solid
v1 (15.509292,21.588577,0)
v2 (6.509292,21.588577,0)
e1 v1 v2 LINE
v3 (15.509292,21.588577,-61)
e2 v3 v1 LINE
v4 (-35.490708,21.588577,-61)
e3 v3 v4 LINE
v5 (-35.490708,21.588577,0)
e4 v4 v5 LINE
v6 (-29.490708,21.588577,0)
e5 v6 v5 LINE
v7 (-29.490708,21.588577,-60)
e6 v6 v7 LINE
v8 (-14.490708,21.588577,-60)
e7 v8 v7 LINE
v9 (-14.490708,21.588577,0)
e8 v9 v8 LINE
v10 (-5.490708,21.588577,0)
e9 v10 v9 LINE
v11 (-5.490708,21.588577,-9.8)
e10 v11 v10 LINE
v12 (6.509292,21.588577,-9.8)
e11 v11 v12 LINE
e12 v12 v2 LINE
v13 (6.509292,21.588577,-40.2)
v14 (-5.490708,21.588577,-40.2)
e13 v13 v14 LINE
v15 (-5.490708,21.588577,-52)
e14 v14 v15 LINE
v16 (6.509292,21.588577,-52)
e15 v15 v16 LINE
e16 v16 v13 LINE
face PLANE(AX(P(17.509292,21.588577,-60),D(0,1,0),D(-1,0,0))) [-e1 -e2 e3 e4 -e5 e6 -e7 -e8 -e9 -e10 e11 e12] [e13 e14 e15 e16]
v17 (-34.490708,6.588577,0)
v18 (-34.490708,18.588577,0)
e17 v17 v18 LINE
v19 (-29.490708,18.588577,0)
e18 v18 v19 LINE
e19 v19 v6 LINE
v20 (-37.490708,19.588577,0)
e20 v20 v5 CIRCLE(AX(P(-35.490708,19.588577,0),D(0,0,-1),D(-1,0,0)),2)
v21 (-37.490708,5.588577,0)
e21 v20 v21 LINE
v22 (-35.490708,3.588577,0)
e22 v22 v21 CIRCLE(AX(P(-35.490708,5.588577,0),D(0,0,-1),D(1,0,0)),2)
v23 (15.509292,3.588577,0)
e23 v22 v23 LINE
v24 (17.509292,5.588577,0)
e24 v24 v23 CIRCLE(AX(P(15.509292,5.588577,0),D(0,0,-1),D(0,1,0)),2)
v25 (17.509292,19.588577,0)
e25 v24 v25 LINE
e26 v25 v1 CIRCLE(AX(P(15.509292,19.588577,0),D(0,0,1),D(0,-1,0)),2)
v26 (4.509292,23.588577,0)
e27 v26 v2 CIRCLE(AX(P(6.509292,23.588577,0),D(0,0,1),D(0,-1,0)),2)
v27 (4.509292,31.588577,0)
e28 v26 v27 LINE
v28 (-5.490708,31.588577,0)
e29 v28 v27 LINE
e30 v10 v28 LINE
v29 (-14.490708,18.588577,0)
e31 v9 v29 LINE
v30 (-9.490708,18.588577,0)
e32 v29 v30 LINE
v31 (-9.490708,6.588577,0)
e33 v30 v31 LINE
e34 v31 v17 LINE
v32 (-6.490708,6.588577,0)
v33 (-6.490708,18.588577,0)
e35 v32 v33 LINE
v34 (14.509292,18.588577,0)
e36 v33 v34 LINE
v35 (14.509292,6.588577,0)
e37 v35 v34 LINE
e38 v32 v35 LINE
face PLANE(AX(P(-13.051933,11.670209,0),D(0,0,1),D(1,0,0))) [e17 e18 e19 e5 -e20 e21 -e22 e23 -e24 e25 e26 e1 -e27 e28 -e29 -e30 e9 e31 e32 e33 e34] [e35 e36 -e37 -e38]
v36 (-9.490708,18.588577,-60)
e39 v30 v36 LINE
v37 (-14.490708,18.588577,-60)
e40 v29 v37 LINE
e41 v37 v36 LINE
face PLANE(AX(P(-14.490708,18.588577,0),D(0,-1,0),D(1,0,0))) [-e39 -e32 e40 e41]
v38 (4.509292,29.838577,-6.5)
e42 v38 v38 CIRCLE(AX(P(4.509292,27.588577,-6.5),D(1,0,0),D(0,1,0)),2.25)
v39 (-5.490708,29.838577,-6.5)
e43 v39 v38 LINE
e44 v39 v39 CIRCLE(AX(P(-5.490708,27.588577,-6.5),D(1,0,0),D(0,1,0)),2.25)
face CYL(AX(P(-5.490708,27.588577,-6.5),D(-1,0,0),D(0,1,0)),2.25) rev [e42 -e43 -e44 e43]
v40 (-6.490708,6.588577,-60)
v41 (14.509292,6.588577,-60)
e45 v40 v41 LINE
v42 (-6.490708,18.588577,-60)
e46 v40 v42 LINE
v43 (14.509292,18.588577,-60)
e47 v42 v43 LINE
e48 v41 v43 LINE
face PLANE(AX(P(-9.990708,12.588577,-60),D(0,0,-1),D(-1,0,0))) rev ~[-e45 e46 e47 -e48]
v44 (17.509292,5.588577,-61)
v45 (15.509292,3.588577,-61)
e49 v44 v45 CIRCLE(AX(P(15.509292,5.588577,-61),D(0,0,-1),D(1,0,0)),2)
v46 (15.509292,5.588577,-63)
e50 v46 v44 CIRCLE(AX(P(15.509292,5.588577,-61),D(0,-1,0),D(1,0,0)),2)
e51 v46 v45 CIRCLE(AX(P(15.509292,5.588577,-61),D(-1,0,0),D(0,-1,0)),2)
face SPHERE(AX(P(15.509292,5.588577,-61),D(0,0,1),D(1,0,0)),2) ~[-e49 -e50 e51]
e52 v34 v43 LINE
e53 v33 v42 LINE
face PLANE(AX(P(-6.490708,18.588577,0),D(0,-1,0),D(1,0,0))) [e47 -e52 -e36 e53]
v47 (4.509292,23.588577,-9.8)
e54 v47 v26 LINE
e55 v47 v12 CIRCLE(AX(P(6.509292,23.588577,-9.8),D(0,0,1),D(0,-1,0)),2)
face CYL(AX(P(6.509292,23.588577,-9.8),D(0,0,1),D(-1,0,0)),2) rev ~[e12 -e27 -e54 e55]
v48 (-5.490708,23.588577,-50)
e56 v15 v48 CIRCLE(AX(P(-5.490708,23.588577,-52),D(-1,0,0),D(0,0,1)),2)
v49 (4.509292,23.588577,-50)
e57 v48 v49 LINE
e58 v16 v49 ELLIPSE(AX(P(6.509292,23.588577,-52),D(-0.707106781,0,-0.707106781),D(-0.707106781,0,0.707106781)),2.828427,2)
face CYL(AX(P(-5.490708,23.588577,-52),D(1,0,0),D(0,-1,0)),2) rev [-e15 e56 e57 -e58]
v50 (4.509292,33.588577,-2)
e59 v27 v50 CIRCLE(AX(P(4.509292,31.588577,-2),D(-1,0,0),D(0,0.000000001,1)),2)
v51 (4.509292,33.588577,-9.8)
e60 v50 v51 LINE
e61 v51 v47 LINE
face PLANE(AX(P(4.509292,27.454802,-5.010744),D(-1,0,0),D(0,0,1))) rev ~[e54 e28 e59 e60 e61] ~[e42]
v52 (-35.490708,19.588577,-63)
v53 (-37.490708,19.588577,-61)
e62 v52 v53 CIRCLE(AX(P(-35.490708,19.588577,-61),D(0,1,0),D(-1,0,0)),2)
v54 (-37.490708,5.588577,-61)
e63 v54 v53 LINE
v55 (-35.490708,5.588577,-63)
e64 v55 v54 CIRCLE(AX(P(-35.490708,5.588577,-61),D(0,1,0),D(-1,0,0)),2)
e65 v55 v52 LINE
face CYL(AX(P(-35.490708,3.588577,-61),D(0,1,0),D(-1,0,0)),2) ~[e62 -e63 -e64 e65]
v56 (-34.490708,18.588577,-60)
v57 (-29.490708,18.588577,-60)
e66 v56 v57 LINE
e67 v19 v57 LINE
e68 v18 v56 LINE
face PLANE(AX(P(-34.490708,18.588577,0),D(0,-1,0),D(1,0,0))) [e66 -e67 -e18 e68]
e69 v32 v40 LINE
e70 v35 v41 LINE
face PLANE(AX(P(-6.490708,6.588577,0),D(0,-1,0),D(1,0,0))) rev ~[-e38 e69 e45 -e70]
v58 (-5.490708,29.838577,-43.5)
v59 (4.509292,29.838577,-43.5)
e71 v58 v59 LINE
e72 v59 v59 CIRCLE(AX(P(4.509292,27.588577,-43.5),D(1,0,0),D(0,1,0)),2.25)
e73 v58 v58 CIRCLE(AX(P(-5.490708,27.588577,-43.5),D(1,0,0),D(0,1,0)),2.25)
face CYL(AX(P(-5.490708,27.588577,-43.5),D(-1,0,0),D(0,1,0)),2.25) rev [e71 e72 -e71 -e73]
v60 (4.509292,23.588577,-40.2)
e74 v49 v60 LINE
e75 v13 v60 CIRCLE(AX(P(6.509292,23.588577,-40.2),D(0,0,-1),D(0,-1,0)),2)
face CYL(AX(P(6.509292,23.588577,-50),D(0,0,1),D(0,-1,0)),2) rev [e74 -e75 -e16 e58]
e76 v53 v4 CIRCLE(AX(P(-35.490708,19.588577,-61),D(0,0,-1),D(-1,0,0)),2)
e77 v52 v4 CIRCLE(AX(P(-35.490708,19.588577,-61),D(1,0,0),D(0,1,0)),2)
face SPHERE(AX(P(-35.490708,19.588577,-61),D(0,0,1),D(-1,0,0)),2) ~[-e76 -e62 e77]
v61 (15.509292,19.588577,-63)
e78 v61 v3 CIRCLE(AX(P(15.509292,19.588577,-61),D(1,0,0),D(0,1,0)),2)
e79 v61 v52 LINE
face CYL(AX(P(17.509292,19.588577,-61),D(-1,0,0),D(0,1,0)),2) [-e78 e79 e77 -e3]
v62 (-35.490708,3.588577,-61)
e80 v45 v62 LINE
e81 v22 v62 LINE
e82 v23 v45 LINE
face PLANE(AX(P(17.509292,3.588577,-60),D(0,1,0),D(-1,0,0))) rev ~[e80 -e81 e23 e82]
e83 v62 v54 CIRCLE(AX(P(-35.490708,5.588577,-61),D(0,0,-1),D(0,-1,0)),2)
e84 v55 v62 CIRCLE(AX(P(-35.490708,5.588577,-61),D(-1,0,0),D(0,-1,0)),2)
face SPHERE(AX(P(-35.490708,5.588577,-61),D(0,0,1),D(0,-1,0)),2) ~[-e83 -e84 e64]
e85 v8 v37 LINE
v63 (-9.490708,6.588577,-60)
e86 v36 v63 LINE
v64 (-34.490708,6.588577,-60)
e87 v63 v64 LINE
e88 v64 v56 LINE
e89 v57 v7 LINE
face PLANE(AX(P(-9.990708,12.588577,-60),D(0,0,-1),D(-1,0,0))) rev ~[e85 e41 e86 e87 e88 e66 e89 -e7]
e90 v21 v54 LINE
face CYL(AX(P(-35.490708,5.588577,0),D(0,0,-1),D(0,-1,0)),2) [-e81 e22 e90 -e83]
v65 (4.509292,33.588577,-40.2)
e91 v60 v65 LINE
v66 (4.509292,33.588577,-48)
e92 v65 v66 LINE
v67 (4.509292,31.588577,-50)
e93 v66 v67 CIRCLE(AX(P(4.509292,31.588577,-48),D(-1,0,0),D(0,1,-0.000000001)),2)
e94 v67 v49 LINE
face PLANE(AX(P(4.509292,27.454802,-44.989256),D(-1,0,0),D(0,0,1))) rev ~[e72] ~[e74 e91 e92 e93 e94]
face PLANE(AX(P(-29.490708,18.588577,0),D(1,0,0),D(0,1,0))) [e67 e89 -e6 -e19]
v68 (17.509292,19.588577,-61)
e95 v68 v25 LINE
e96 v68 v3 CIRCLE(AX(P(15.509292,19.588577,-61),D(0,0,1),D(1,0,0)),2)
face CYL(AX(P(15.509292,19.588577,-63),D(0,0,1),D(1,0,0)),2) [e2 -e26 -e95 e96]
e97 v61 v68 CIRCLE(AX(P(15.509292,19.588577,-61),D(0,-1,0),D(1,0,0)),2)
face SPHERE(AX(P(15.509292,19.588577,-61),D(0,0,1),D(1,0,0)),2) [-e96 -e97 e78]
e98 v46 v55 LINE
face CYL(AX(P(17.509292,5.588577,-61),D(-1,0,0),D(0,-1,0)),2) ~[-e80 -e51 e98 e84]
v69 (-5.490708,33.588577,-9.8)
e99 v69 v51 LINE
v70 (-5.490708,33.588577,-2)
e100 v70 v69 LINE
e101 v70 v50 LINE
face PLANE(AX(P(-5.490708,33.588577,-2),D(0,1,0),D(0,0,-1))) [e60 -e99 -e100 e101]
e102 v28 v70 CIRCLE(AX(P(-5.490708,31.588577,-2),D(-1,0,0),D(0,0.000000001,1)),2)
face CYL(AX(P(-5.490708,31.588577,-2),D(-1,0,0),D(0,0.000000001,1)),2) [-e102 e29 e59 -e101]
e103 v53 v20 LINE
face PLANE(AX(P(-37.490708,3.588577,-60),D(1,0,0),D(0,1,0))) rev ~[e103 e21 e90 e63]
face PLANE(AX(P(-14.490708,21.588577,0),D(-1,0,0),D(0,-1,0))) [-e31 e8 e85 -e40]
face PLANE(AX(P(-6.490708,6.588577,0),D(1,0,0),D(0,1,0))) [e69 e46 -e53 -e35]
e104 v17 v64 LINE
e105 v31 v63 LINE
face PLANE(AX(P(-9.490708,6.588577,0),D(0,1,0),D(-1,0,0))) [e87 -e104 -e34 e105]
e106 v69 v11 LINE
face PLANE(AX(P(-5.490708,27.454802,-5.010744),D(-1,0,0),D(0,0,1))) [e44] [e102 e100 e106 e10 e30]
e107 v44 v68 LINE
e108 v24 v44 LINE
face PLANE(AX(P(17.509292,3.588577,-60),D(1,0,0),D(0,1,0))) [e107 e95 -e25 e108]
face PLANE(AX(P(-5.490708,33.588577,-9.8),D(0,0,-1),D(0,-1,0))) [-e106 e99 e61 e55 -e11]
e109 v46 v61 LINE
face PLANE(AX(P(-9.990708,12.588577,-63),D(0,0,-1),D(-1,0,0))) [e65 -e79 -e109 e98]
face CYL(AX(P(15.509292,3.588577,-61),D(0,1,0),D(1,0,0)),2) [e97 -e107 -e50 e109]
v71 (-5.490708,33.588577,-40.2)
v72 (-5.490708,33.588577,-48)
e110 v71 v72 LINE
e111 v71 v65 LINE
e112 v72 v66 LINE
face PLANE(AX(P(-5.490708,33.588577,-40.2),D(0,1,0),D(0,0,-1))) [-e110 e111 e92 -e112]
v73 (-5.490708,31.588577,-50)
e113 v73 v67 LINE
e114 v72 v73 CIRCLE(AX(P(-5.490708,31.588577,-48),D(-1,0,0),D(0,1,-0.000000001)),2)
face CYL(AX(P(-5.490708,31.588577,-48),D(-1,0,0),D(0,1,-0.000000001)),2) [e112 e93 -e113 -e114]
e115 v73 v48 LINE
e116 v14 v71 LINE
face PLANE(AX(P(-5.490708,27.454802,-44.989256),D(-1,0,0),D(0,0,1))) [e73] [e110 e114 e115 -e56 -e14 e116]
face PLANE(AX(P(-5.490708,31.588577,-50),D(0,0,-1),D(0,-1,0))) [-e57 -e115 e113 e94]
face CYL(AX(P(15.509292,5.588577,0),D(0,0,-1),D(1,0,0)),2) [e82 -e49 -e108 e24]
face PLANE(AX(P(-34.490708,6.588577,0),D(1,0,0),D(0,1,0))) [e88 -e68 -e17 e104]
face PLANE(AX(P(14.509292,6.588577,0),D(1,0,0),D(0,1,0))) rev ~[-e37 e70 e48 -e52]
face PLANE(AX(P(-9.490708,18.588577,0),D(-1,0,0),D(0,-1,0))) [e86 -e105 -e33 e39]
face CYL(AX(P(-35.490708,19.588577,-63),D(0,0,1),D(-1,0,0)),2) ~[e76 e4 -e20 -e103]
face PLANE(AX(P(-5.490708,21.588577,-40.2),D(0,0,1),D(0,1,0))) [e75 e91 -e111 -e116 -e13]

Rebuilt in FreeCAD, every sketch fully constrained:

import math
import FreeCAD as App
import Part
import Sketcher


def edges_at(feature, points):
    """Names of the edges that pass closest to the given points."""
    edges = feature.Shape.Edges
    near = lambda p: min(range(len(edges)), key=lambda i: edges[i].distToShape(Part.Vertex(*p))[0])
    return sorted({f"Edge{near(p) + 1}" for p in points})

doc = App.newDocument("Part")
params = doc.addObject("Spreadsheet::Sheet", "Params")
for row, (alias, value) in enumerate([
    ("sketch1_width", "32 mm"),
    ("sketch1_width2", "5 mm"),
    ("sketch1_width3", "25 mm"),
    ("sketch1_width4", "8 mm"),
    ("sketch1_width5", "21 mm"),
    ("pad1_length", "60 mm"),
    ("sketch2_radius", "2 mm"),
    ("sketch2_diameter", "4.5 mm"),
    ("sketch2_width", "10 mm"),
    ("sketch2_height", "9.8 mm"),
    ("pad2_length", "10 mm"),
    ("sketch3_width", "55 mm"),
    ("sketch3_height", "18 mm"),
    ("pad3_length", "3 mm"),
    ("fillet_radius", "2 mm"),
], start=1):
    params.set(f"A{row}", alias)
    params.set(f"B{row}", "=" + value)
    params.setAlias(f"B{row}", alias)

body = doc.addObject("PartDesign::Body", "Body")

# Sketch on XY plane
sketch1 = body.newObject("Sketcher::SketchObject", "Sketch")
sketch1.AttachmentSupport = (doc.getObject("XY_Plane"), [""])
sketch1.MapMode = "FlatFace"
sketch1.addGeometry(Part.LineSegment(App.Vector(17.5, 21.6, 0), App.Vector(-14.5, 21.6, 0)), False)
sketch1.addGeometry(Part.LineSegment(App.Vector(-14.5, 21.6, 0), App.Vector(-14.5, 18.6, 0)), False)
sketch1.addGeometry(Part.LineSegment(App.Vector(-14.5, 18.6, 0), App.Vector(-9.5, 18.6, 0)), False)
sketch1.addGeometry(Part.LineSegment(App.Vector(-9.5, 18.6, 0), App.Vector(-9.5, 6.6, 0)), False)
sketch1.addGeometry(Part.LineSegment(App.Vector(-9.5, 6.6, 0), App.Vector(-34.5, 6.6, 0)), False)
sketch1.addGeometry(Part.LineSegment(App.Vector(-34.5, 6.6, 0), App.Vector(-34.5, 18.6, 0)), False)
sketch1.addGeometry(Part.LineSegment(App.Vector(-34.5, 18.6, 0), App.Vector(-29.5, 18.6, 0)), False)
sketch1.addGeometry(Part.LineSegment(App.Vector(-29.5, 18.6, 0), App.Vector(-29.5, 21.6, 0)), False)
sketch1.addGeometry(Part.LineSegment(App.Vector(-29.5, 21.6, 0), App.Vector(-37.5, 21.6, 0)), False)
sketch1.addGeometry(Part.LineSegment(App.Vector(-37.5, 21.6, 0), App.Vector(-37.5, 3.6, 0)), False)
sketch1.addGeometry(Part.LineSegment(App.Vector(-37.5, 3.6, 0), App.Vector(17.5, 3.6, 0)), False)
sketch1.addGeometry(Part.LineSegment(App.Vector(17.5, 3.6, 0), App.Vector(17.5, 21.6, 0)), False)
sketch1.addGeometry(Part.LineSegment(App.Vector(14.5, 6.6, 0), App.Vector(-6.5, 6.6, 0)), False)
sketch1.addGeometry(Part.LineSegment(App.Vector(-6.5, 6.6, 0), App.Vector(-6.5, 18.6, 0)), False)
sketch1.addGeometry(Part.LineSegment(App.Vector(-6.5, 18.6, 0), App.Vector(14.5, 18.6, 0)), False)
sketch1.addGeometry(Part.LineSegment(App.Vector(14.5, 18.6, 0), App.Vector(14.5, 6.6, 0)), False)
sketch1.addConstraint(Sketcher.Constraint("Coincident", 0, 2, 1, 1))
sketch1.addConstraint(Sketcher.Constraint("Coincident", 1, 2, 2, 1))
sketch1.addConstraint(Sketcher.Constraint("Coincident", 2, 2, 3, 1))
sketch1.addConstraint(Sketcher.Constraint("Coincident", 3, 2, 4, 1))
sketch1.addConstraint(Sketcher.Constraint("Coincident", 4, 2, 5, 1))
sketch1.addConstraint(Sketcher.Constraint("Coincident", 5, 2, 6, 1))
sketch1.addConstraint(Sketcher.Constraint("Coincident", 6, 2, 7, 1))
sketch1.addConstraint(Sketcher.Constraint("Coincident", 7, 2, 8, 1))
sketch1.addConstraint(Sketcher.Constraint("Coincident", 8, 2, 9, 1))
sketch1.addConstraint(Sketcher.Constraint("Coincident", 9, 2, 10, 1))
sketch1.addConstraint(Sketcher.Constraint("Coincident", 10, 2, 11, 1))
sketch1.addConstraint(Sketcher.Constraint("Coincident", 11, 2, 0, 1))
sketch1.addConstraint(Sketcher.Constraint("Coincident", 12, 2, 13, 1))
sketch1.addConstraint(Sketcher.Constraint("Coincident", 13, 2, 14, 1))
sketch1.addConstraint(Sketcher.Constraint("Coincident", 14, 2, 15, 1))
sketch1.addConstraint(Sketcher.Constraint("Coincident", 15, 2, 12, 1))
sketch1.addConstraint(Sketcher.Constraint("Horizontal", 0))
sketch1.addConstraint(Sketcher.Constraint("Vertical", 1))
sketch1.addConstraint(Sketcher.Constraint("Horizontal", 2))
sketch1.addConstraint(Sketcher.Constraint("Vertical", 3))
sketch1.addConstraint(Sketcher.Constraint("Horizontal", 4))
sketch1.addConstraint(Sketcher.Constraint("Vertical", 5))
sketch1.addConstraint(Sketcher.Constraint("Horizontal", 6))
sketch1.addConstraint(Sketcher.Constraint("Vertical", 7))
sketch1.addConstraint(Sketcher.Constraint("Horizontal", 8))
sketch1.addConstraint(Sketcher.Constraint("Vertical", 9))
sketch1.addConstraint(Sketcher.Constraint("Horizontal", 10))
sketch1.addConstraint(Sketcher.Constraint("Vertical", 11))
sketch1.addConstraint(Sketcher.Constraint("Horizontal", 12))
sketch1.addConstraint(Sketcher.Constraint("Vertical", 13))
sketch1.addConstraint(Sketcher.Constraint("Horizontal", 14))
sketch1.addConstraint(Sketcher.Constraint("Vertical", 15))
sketch1.addConstraint(Sketcher.Constraint("Horizontal", 2, 2, 5, 2))
sketch1.addConstraint(Sketcher.Constraint("Horizontal", 0, 2, 7, 2))
sketch1.addConstraint(Sketcher.Constraint("Horizontal", 4, 2, 12, 2))
sketch1.addConstraint(Sketcher.Constraint("Horizontal", 6, 2, 13, 2))
sketch1.addConstraint(Sketcher.Constraint("Equal", 2, 6))
sketch1.addConstraint(Sketcher.Constraint("DistanceX", 0, 2, 0, 1, 32.0))
sketch1.addConstraint(Sketcher.Constraint("DistanceX", 2, 1, 2, 2, 5.0))
sketch1.addConstraint(Sketcher.Constraint("DistanceX", 4, 2, 4, 1, 25.0))
sketch1.addConstraint(Sketcher.Constraint("DistanceX", 8, 2, 8, 1, 8.0))
sketch1.addConstraint(Sketcher.Constraint("DistanceX", 12, 2, 12, 1, 21.0))
sketch1.addConstraint(Sketcher.Constraint("DistanceY", 1, 2, 1, 1, 3.0))
sketch1.addConstraint(Sketcher.Constraint("DistanceY", 3, 2, 3, 1, 12.0))
sketch1.addConstraint(Sketcher.Constraint("DistanceY", 9, 2, 9, 1, 18.0))
sketch1.addConstraint(Sketcher.Constraint("DistanceX", 3, 2, 12, 2, 3.0))
sketch1.addConstraint(Sketcher.Constraint("DistanceX", 0, 2, -1, 1, 14.490708))
sketch1.addConstraint(Sketcher.Constraint("DistanceY", -1, 1, 0, 2, 21.588577))
sketch1.setExpression("Constraints[37]", "Params.sketch1_width")
sketch1.setExpression("Constraints[38]", "Params.sketch1_width2")
sketch1.setExpression("Constraints[39]", "Params.sketch1_width3")
sketch1.setExpression("Constraints[40]", "Params.sketch1_width4")
sketch1.setExpression("Constraints[41]", "Params.sketch1_width5")
pad1 = body.newObject("PartDesign::Pad", "Pad")
pad1.Profile = sketch1
pad1.setExpression("Length", "Params.pad1_length")
pad1.Reversed = True

# Sketch on YZ plane
sketch2 = body.newObject("Sketcher::SketchObject", "Sketch001")
sketch2.AttachmentSupport = (doc.getObject("YZ_Plane"), [""])
sketch2.MapMode = "FlatFace"
sketch2.AttachmentOffset = App.Placement(App.Vector(0, 0, -5.490708), App.Rotation())
sketch2.addGeometry(Part.LineSegment(App.Vector(21.6, -40.2, 0), App.Vector(21.6, -50, 0)), False)
sketch2.addGeometry(Part.LineSegment(App.Vector(21.6, -50, 0), App.Vector(31.6, -50, 0)), False)
sketch2.addGeometry(Part.ArcOfCircle(Part.Circle(App.Vector(31.6, -48, 0), App.Vector(0, 0, 1), 2), math.radians(-90), math.radians(0)), False)
sketch2.addGeometry(Part.LineSegment(App.Vector(33.6, -48, 0), App.Vector(33.6, -40.2, 0)), False)
sketch2.addGeometry(Part.LineSegment(App.Vector(33.6, -40.2, 0), App.Vector(21.6, -40.2, 0)), False)
sketch2.addGeometry(Part.Circle(App.Vector(27.6, -43.5, 0), App.Vector(0, 0, 1), 2.2), False)
sketch2.addGeometry(Part.LineSegment(App.Vector(21.6, 0, 0), App.Vector(21.6, -9.8, 0)), False)
sketch2.addGeometry(Part.LineSegment(App.Vector(21.6, -9.8, 0), App.Vector(33.6, -9.8, 0)), False)
sketch2.addGeometry(Part.LineSegment(App.Vector(33.6, -9.8, 0), App.Vector(33.6, -2, 0)), False)
sketch2.addGeometry(Part.ArcOfCircle(Part.Circle(App.Vector(31.6, -2, 0), App.Vector(0, 0, 1), 2), math.radians(0), math.radians(90)), False)
sketch2.addGeometry(Part.LineSegment(App.Vector(31.6, 0, 0), App.Vector(21.6, 0, 0)), False)
sketch2.addGeometry(Part.Circle(App.Vector(27.6, -6.5, 0), App.Vector(0, 0, 1), 2.2), False)
sketch2.addConstraint(Sketcher.Constraint("Coincident", 0, 2, 1, 1))
sketch2.addConstraint(Sketcher.Constraint("Tangent", 1, 2, 2, 1))
sketch2.addConstraint(Sketcher.Constraint("Tangent", 2, 2, 3, 1))
sketch2.addConstraint(Sketcher.Constraint("Coincident", 3, 2, 4, 1))
sketch2.addConstraint(Sketcher.Constraint("Coincident", 4, 2, 0, 1))
sketch2.addConstraint(Sketcher.Constraint("Coincident", 6, 2, 7, 1))
sketch2.addConstraint(Sketcher.Constraint("Coincident", 7, 2, 8, 1))
sketch2.addConstraint(Sketcher.Constraint("Tangent", 8, 2, 9, 1))
sketch2.addConstraint(Sketcher.Constraint("Tangent", 9, 2, 10, 1))
sketch2.addConstraint(Sketcher.Constraint("Coincident", 10, 2, 6, 1))
sketch2.addConstraint(Sketcher.Constraint("Vertical", 0))
sketch2.addConstraint(Sketcher.Constraint("Horizontal", 1))
sketch2.addConstraint(Sketcher.Constraint("Vertical", 3))
sketch2.addConstraint(Sketcher.Constraint("Horizontal", 4))
sketch2.addConstraint(Sketcher.Constraint("Vertical", 6))
sketch2.addConstraint(Sketcher.Constraint("Horizontal", 7))
sketch2.addConstraint(Sketcher.Constraint("Vertical", 8))
sketch2.addConstraint(Sketcher.Constraint("Horizontal", 10))
sketch2.addConstraint(Sketcher.Constraint("Equal", 2, 9))
sketch2.addConstraint(Sketcher.Constraint("Equal", 5, 11))
sketch2.addConstraint(Sketcher.Constraint("PointOnObject", 9, 2, -1))
sketch2.addConstraint(Sketcher.Constraint("Vertical", 2, 3, 9, 3))
sketch2.addConstraint(Sketcher.Constraint("Vertical", 5, 3, 11, 3))
sketch2.addConstraint(Sketcher.Constraint("Vertical", 4, 2, 6, 2))
sketch2.addConstraint(Sketcher.Constraint("Equal", 0, 6))
sketch2.addConstraint(Sketcher.Constraint("Radius", 2, 2.0))
sketch2.addConstraint(Sketcher.Constraint("Diameter", 5, 4.5))
sketch2.addConstraint(Sketcher.Constraint("DistanceX", 1, 1, 1, 2, 10.0))
sketch2.addConstraint(Sketcher.Constraint("DistanceY", 0, 2, 0, 1, 9.8))
sketch2.addConstraint(Sketcher.Constraint("DistanceY", 2, 3, -1, 1, 48.0))
sketch2.addConstraint(Sketcher.Constraint("DistanceX", 5, 3, 2, 3, 4.0))
sketch2.addConstraint(Sketcher.Constraint("DistanceY", 5, 3, 11, 3, 37.0))
sketch2.addConstraint(Sketcher.Constraint("DistanceY", 5, 3, -1, 1, 43.5))
sketch2.addConstraint(Sketcher.Constraint("DistanceX", -1, 1, 2, 3, 31.588577))
sketch2.setExpression("Constraints[25]", "Params.sketch2_radius")
sketch2.setExpression("Constraints[26]", "Params.sketch2_diameter")
sketch2.setExpression("Constraints[27]", "Params.sketch2_width")
sketch2.setExpression("Constraints[28]", "Params.sketch2_height")
pad2 = body.newObject("PartDesign::Pad", "Pad001")
pad2.Profile = sketch2
pad2.setExpression("Length", "Params.pad2_length")

# Sketch on XY plane
sketch3 = body.newObject("Sketcher::SketchObject", "Sketch002")
sketch3.AttachmentSupport = (doc.getObject("XY_Plane"), [""])
sketch3.MapMode = "FlatFace"
sketch3.AttachmentOffset = App.Placement(App.Vector(0, 0, -60), App.Rotation())
sketch3.addGeometry(Part.LineSegment(App.Vector(18, 22, 0), App.Vector(18, 4, 0)), False)
sketch3.addGeometry(Part.LineSegment(App.Vector(18, 4, 0), App.Vector(-37, 4, 0)), False)
sketch3.addGeometry(Part.LineSegment(App.Vector(-37, 4, 0), App.Vector(-37, 22, 0)), False)
sketch3.addGeometry(Part.LineSegment(App.Vector(-37, 22, 0), App.Vector(18, 22, 0)), False)
sketch3.addConstraint(Sketcher.Constraint("Coincident", 0, 2, 1, 1))
sketch3.addConstraint(Sketcher.Constraint("Coincident", 1, 2, 2, 1))
sketch3.addConstraint(Sketcher.Constraint("Coincident", 2, 2, 3, 1))
sketch3.addConstraint(Sketcher.Constraint("Coincident", 3, 2, 0, 1))
sketch3.addConstraint(Sketcher.Constraint("Vertical", 0))
sketch3.addConstraint(Sketcher.Constraint("Horizontal", 1))
sketch3.addConstraint(Sketcher.Constraint("Vertical", 2))
sketch3.addConstraint(Sketcher.Constraint("Horizontal", 3))
sketch3.addConstraint(Sketcher.Constraint("DistanceX", 1, 2, 1, 1, 55.0))
sketch3.addConstraint(Sketcher.Constraint("DistanceY", 0, 2, 0, 1, 18.0))
sketch3.addConstraint(Sketcher.Constraint("DistanceX", -1, 1, 0, 2, 17.509292))
sketch3.addConstraint(Sketcher.Constraint("DistanceY", -1, 1, 0, 2, 3.588577))
sketch3.setExpression("Constraints[8]", "Params.sketch3_width")
sketch3.setExpression("Constraints[9]", "Params.sketch3_height")
pad3 = body.newObject("PartDesign::Pad", "Pad002")
pad3.Profile = sketch3
pad3.setExpression("Length", "Params.pad3_length")
pad3.Reversed = True
doc.recompute()

fillet = body.newObject("PartDesign::Fillet", "Fillet")
fillet.Base = (pad3, edges_at(pad3, [
    (17.509, 3.589, -31.5),
    (-37.491, 3.589, -31.5),
    (-37.491, 21.589, -31.5),
    (17.509, 21.589, -31.5),
    (4.509, 21.589, -45.1),
    (-0.491, 21.589, -50),
    (4.509, 21.589, -4.9),
    (17.509, 12.589, -63),
    (-9.991, 3.589, -63),
    (-37.491, 12.589, -63),
    (-9.991, 21.589, -63),
]))
fillet.setExpression("Radius", "Params.fillet_radius")

doc.recompute()
